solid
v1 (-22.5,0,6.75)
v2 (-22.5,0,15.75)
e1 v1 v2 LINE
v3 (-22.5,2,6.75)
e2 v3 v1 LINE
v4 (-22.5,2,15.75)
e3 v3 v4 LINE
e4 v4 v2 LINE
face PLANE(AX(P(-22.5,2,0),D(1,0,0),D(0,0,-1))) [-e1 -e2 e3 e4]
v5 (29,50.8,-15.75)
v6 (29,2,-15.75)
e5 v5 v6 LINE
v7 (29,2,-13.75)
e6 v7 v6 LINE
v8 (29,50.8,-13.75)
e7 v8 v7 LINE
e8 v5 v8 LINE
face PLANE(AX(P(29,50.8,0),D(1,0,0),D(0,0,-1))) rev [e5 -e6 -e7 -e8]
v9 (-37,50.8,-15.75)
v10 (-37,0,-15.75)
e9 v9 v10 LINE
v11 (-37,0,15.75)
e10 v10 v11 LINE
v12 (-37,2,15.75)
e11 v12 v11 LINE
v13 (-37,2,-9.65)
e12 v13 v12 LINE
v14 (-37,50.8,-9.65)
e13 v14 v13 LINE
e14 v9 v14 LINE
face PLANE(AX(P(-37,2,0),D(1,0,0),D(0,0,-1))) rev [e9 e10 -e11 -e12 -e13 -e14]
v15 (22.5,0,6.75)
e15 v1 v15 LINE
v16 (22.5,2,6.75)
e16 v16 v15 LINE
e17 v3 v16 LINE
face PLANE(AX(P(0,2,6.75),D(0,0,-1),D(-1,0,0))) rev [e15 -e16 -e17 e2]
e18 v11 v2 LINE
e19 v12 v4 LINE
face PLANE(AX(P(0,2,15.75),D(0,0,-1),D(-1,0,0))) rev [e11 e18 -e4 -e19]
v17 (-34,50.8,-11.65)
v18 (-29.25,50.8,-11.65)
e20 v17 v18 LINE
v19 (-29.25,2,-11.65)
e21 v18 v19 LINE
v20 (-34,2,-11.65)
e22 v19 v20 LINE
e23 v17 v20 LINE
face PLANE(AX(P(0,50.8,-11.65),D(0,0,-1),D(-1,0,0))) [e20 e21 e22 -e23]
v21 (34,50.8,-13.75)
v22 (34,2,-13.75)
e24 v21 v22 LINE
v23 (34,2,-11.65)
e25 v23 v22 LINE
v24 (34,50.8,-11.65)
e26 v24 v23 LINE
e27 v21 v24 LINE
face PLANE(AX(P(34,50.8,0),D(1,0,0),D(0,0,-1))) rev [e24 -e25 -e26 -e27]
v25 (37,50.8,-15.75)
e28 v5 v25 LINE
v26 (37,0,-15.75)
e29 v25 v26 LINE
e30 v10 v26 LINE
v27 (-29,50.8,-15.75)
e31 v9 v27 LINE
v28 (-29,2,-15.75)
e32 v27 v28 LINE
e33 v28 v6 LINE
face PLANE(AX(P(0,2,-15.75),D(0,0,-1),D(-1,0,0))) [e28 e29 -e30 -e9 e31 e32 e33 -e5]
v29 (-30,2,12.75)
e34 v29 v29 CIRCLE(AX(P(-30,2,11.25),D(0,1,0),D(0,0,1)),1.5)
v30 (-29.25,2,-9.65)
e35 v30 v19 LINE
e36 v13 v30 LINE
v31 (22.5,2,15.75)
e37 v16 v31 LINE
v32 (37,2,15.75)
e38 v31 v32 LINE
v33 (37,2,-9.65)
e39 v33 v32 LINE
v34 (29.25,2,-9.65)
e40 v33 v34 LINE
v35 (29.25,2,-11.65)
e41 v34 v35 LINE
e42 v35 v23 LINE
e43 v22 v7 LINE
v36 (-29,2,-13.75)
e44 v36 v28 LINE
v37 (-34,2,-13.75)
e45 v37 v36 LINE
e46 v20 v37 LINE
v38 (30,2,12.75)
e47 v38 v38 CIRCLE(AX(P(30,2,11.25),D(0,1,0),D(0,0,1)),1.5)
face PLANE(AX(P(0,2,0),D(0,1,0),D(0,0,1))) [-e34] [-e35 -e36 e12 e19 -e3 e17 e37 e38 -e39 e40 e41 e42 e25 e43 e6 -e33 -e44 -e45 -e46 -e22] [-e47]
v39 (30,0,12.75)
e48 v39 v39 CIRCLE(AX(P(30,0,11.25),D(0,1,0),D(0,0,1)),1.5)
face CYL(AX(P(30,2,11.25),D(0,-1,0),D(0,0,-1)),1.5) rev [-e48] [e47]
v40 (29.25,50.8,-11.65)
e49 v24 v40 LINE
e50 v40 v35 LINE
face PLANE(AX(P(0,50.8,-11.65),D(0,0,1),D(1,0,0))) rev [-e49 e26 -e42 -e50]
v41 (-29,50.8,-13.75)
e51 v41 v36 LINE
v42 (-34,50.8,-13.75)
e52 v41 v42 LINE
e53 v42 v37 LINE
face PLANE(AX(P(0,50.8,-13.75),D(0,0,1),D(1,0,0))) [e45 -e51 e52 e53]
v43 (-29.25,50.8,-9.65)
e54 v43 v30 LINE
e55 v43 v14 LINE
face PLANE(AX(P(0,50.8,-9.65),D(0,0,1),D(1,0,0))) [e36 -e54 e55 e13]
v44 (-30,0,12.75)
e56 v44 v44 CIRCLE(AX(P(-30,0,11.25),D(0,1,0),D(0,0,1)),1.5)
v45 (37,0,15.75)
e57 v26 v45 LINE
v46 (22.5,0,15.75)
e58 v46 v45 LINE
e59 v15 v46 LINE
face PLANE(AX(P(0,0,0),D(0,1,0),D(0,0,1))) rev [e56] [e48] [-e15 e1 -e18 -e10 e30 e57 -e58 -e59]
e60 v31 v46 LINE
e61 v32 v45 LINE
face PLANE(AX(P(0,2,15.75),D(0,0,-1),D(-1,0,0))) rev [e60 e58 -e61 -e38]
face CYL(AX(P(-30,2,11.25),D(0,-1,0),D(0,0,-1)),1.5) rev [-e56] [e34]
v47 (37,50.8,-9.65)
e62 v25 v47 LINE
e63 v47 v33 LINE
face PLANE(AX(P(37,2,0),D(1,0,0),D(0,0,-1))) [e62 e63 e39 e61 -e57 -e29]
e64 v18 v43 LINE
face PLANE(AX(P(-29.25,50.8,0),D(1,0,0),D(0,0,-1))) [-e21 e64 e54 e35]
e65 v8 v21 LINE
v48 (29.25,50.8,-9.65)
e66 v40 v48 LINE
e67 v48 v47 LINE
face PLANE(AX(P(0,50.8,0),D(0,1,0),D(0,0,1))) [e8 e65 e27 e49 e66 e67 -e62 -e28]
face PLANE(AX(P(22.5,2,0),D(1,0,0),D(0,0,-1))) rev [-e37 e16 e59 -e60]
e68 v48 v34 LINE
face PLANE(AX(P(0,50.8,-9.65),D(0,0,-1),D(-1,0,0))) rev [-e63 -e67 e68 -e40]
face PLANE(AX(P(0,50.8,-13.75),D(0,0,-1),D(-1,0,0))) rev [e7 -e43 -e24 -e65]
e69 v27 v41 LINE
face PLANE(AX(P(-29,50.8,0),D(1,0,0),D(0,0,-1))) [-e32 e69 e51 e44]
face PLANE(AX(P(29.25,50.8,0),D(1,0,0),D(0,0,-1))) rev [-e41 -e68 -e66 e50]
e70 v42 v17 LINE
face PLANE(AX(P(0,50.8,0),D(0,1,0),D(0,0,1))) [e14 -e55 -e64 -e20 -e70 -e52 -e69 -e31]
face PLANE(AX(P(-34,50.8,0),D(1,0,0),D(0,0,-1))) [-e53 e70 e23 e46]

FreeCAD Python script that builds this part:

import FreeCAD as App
import Part
import Sketcher


def add_polygon(sketch, points):
    """Adds a closed chain of lines whose ends are joined by coincident constraints."""
    first, n = sketch.GeometryCount, len(points)
    for a, b in zip(points, points[1:] + points[:1]):
        sketch.addGeometry(Part.LineSegment(App.Vector(*a, 0), App.Vector(*b, 0)), False)
    for i in range(n):
        sketch.addConstraint(Sketcher.Constraint("Coincident", first + i, 2, first + (i + 1) % n, 1))

doc = App.newDocument("Part")
params = doc.addObject("Spreadsheet::Sheet", "Params")
for row, (alias, value) in enumerate([
    ("sketch1_diameter", "3 mm"),
    ("sketch1_width", "45 mm"),
    ("sketch1_width2", "74 mm"),
    ("sketch1_height", "9 mm"),
    ("sketch1_height2", "31.5 mm"),
    ("pad1_length", "2 mm"),
    ("sketch2_width", "8 mm"),
    ("sketch2_width2", "5 mm"),
    ("sketch2_height", "2 mm"),
    ("sketch2_height2", "6.1 mm"),
    ("sketch2_width3", "7.75 mm"),
    ("pad2_length", "50.8 mm"),
], start=1):
    params.set(f"A{row}", alias)
    params.set(f"B{row}", "=" + value)
    params.setAlias(f"B{row}", alias)

body = doc.addObject("PartDesign::Body", "Body")

# Sketch on XZ plane
sketch1 = body.newObject("Sketcher::SketchObject", "Sketch")
sketch1.AttachmentSupport = (doc.getObject("XZ_Plane"), [""])
sketch1.MapMode = "FlatFace"
add_polygon(sketch1, [(-37, -15.8), (-37, 15.8), (-22.5, 15.8), (-22.5, 6.8), (22.5, 6.8), (22.5, 15.8), (37, 15.8), (37, -15.8)])  # lines 0-7
sketch1.addGeometry(Part.Circle(App.Vector(-30, 11.2, 0), App.Vector(0, 0, 1), 1.5), False)  # 8
sketch1.addGeometry(Part.Circle(App.Vector(30, 11.2, 0), App.Vector(0, 0, 1), 1.5), False)  # 9
sketch1.addConstraint(Sketcher.Constraint("Vertical", 0))
sketch1.addConstraint(Sketcher.Constraint("Horizontal", 1))
sketch1.addConstraint(Sketcher.Constraint("Vertical", 2))
sketch1.addConstraint(Sketcher.Constraint("Horizontal", 3))
sketch1.addConstraint(Sketcher.Constraint("Vertical", 4))
sketch1.addConstraint(Sketcher.Constraint("Horizontal", 5))
sketch1.addConstraint(Sketcher.Constraint("Vertical", 6))
sketch1.addConstraint(Sketcher.Constraint("Horizontal", 7))
sketch1.addConstraint(Sketcher.Constraint("Equal", 8, 9))
sketch1.addConstraint(Sketcher.Constraint("Symmetric", 0, 2, 6, 2, -1, 1))
sketch1.addConstraint(Sketcher.Constraint("Symmetric", 8, 3, 9, 3, -2))
sketch1.addConstraint(Sketcher.Constraint("Symmetric", 1, 2, 4, 2, -2))
sketch1.addConstraint(Sketcher.Constraint("Diameter", 8, 3.0))
sketch1.addConstraint(Sketcher.Constraint("DistanceX", 3, 1, 3, 2, 45.0))
sketch1.addConstraint(Sketcher.Constraint("DistanceX", 7, 2, 7, 1, 74.0))
sketch1.addConstraint(Sketcher.Constraint("DistanceY", 2, 2, 2, 1, 9.0))
sketch1.addConstraint(Sketcher.Constraint("DistanceY", 0, 1, 0, 2, 31.5))
sketch1.addConstraint(Sketcher.Constraint("DistanceX", 8, 3, -1, 1, 30.0))
sketch1.addConstraint(Sketcher.Constraint("DistanceY", 6, 2, 9, 3, 27.0))
sketch1.setExpression("Constraints[20]", "Params.sketch1_diameter")
sketch1.setExpression("Constraints[21]", "Params.sketch1_width")
sketch1.setExpression("Constraints[22]", "Params.sketch1_width2")
sketch1.setExpression("Constraints[23]", "Params.sketch1_height")
sketch1.setExpression("Constraints[24]", "Params.sketch1_height2")
pad1 = body.newObject("PartDesign::Pad", "Pad")
pad1.Profile = sketch1
pad1.setExpression("Length", "Params.pad1_length")
pad1.Reversed = True

# Sketch on XZ plane
sketch2 = body.newObject("Sketcher::SketchObject", "Sketch001")
sketch2.AttachmentSupport = (doc.getObject("XZ_Plane"), [""])
sketch2.MapMode = "FlatFace"
add_polygon(sketch2, [(-29, -13.8), (-29, -15.8), (-37, -15.8), (-37, -9.7), (-29.2, -9.7), (-29.2, -11.7), (-34, -11.7), (-34, -13.8)])  # lines 0-7
add_polygon(sketch2, [(37, -15.8), (29, -15.8), (29, -13.8), (34, -13.8), (34, -11.7), (29.2, -11.7), (29.2, -9.7), (37, -9.7)])  # lines 8-15
sketch2.addConstraint(Sketcher.Constraint("Vertical", 0))
sketch2.addConstraint(Sketcher.Constraint("Horizontal", 1))
sketch2.addConstraint(Sketcher.Constraint("Vertical", 2))
sketch2.addConstraint(Sketcher.Constraint("Horizontal", 3))
sketch2.addConstraint(Sketcher.Constraint("Vertical", 4))
sketch2.addConstraint(Sketcher.Constraint("Horizontal", 5))
sketch2.addConstraint(Sketcher.Constraint("Vertical", 6))
sketch2.addConstraint(Sketcher.Constraint("Horizontal", 7))
sketch2.addConstraint(Sketcher.Constraint("Horizontal", 8))
sketch2.addConstraint(Sketcher.Constraint("Vertical", 9))
sketch2.addConstraint(Sketcher.Constraint("Horizontal", 10))
sketch2.addConstraint(Sketcher.Constraint("Vertical", 11))
sketch2.addConstraint(Sketcher.Constraint("Horizontal", 12))
sketch2.addConstraint(Sketcher.Constraint("Vertical", 13))
sketch2.addConstraint(Sketcher.Constraint("Horizontal", 14))
sketch2.addConstraint(Sketcher.Constraint("Vertical", 15))
sketch2.addConstraint(Sketcher.Constraint("Symmetric", 0, 2, 8, 2, -2))
sketch2.addConstraint(Sketcher.Constraint("Symmetric", 6, 2, 10, 2, -2))
sketch2.addConstraint(Sketcher.Constraint("Symmetric", 4, 2, 12, 2, -2))
sketch2.addConstraint(Sketcher.Constraint("Symmetric", 2, 2, 14, 2, -2))
sketch2.addConstraint(Sketcher.Constraint("Equal", 0, 4))
sketch2.addConstraint(Sketcher.Constraint("DistanceX", 1, 2, 1, 1, 8.0))
sketch2.addConstraint(Sketcher.Constraint("DistanceX", 7, 1, 7, 2, 5.0))
sketch2.addConstraint(Sketcher.Constraint("DistanceY", 0, 2, 0, 1, 2.0))
sketch2.addConstraint(Sketcher.Constraint("DistanceY", 2, 1, 2, 2, 6.1))
sketch2.addConstraint(Sketcher.Constraint("DistanceX", 0, 2, -1, 1, 29.0))
sketch2.addConstraint(Sketcher.Constraint("DistanceX", 3, 1, 3, 2, 7.75))
sketch2.addConstraint(Sketcher.Constraint("DistanceY", 0, 2, -1, 1, 15.75))
sketch2.setExpression("Constraints[37]", "Params.sketch2_width")
sketch2.setExpression("Constraints[38]", "Params.sketch2_width2")
sketch2.setExpression("Constraints[39]", "Params.sketch2_height")
sketch2.setExpression("Constraints[40]", "Params.sketch2_height2")
sketch2.setExpression("Constraints[42]", "Params.sketch2_width3")
pad2 = body.newObject("PartDesign::Pad", "Pad001")
pad2.Profile = sketch2
pad2.setExpression("Length", "Params.pad2_length")
pad2.Reversed = True

doc.recompute()
